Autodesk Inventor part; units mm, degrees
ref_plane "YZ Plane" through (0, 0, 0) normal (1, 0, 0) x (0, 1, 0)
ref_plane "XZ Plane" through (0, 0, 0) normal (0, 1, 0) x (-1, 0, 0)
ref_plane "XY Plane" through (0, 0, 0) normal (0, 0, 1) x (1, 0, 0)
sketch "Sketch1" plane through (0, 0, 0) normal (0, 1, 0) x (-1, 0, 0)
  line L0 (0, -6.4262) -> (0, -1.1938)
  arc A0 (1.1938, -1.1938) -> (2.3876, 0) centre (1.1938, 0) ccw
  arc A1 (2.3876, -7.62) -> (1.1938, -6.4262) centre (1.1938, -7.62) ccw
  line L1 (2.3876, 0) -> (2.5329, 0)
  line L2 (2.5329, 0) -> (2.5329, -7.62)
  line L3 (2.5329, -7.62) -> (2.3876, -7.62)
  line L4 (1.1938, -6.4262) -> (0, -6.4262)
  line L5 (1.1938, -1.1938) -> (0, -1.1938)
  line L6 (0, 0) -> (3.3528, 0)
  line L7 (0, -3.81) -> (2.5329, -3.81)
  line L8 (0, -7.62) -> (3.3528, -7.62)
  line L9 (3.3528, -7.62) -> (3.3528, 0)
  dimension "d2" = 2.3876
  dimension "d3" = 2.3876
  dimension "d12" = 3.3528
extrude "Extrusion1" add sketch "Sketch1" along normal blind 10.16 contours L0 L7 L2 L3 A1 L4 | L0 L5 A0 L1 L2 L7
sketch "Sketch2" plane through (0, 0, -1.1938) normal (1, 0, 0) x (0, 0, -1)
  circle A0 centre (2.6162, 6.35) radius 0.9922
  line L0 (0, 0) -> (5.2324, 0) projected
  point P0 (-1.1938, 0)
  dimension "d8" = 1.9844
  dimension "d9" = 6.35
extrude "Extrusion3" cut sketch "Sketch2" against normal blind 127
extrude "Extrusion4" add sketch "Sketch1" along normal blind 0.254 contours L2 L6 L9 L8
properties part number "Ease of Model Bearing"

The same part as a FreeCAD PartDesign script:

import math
import FreeCAD as App
import Part
import Sketcher
from FreeCAD import Vector
Q = App.Units.Quantity

doc = App.newDocument("Part")
body = doc.addObject("PartDesign::Body", "Body")

sketch1 = body.newObject("Sketcher::SketchObject", "Sketch")
sketch1.AttachmentSupport = (doc.getObject("XZ_Plane"), [""])
sketch1.MapMode = "FlatFace"
sketch1.addGeometry([
    Part.LineSegment(Vector(0, -6.4262, 0), Vector(-1.1938, -6.4262, 0)),
    Part.ArcOfCircle(Part.Circle(Vector(-1.1938, -7.62, 0), Vector(0, 0, 1), 1.1938), math.radians(90), math.radians(180)),
    Part.LineSegment(Vector(-2.3876, -7.62, 0), Vector(-2.5329, -7.62, 0)),
    Part.LineSegment(Vector(-2.5329, -7.62, 0), Vector(-2.5329, 0, 0)),
    Part.LineSegment(Vector(-2.5329, 0, 0), Vector(-2.3876, 0, 0)),
    Part.ArcOfCircle(Part.Circle(Vector(-1.1938, 0, 0), Vector(0, 0, 1), 1.1938), math.radians(180), math.radians(270)),
    Part.LineSegment(Vector(-1.1938, -1.1938, 0), Vector(0, -1.1938, 0)),
    Part.LineSegment(Vector(0, -1.1938, 0), Vector(0, -6.4262, 0)),
], False)
sketch1.addConstraint([
    Sketcher.Constraint("Tangent", 0, 2, 1, 1),
    Sketcher.Constraint("Coincident", 1, 2, 2, 1),
    Sketcher.Constraint("Coincident", 2, 2, 3, 1),
    Sketcher.Constraint("Coincident", 3, 2, 4, 1),
    Sketcher.Constraint("Coincident", 4, 2, 5, 1),
    Sketcher.Constraint("Tangent", 5, 2, 6, 1),
    Sketcher.Constraint("Coincident", 6, 2, 7, 1),
    Sketcher.Constraint("Coincident", 7, 2, 0, 1),
    Sketcher.Constraint("Horizontal", 0),
    Sketcher.Constraint("Horizontal", 2),
    Sketcher.Constraint("Vertical", 3),
    Sketcher.Constraint("Horizontal", 4),
    Sketcher.Constraint("Horizontal", 6),
    Sketcher.Constraint("Vertical", 7),
    Sketcher.Constraint("Equal", 1, 5),
    Sketcher.Constraint("PointOnObject", 5, 3, -1),
    Sketcher.Constraint("PointOnObject", 3, 2, -1),
    Sketcher.Constraint("PointOnObject", 6, 2, -2),
    Sketcher.Constraint("Vertical", 1, 3, 5, 3),
    Sketcher.Constraint("Radius", 1, Q("0.047 in")),
    Sketcher.Constraint("DistanceY", 3, 1, 3, 2, Q("0.3 in")),
    Sketcher.Constraint("DistanceX", 1, 2, -1, 1, Q("0.094 in")),
    Sketcher.Constraint("DistanceY", 1, 3, -1, 1, Q("0.3 in")),
    Sketcher.Constraint("DistanceX", 2, 2, 2, 1, 0.1453),
])
pad1 = body.newObject("PartDesign::Pad", "Pad")
pad1.Profile = sketch1
pad1.Length = Q("0.4 in")
pad1.Reversed = True

sketch2 = body.newObject("Sketcher::SketchObject", "Sketch001")
sketch2.AttachmentSupport = (doc.getObject("YZ_Plane"), [""])
sketch2.MapMode = "FlatFace"
sketch2.addGeometry(Part.Circle(Vector(6.35, -3.81, 0), Vector(0, 0, 1), 0.9922), False)
sketch2.addConstraint([
    Sketcher.Constraint("Diameter", 0, Q("0.078126 in")),
    Sketcher.Constraint("DistanceX", -1, 1, 0, 3, Q("0.25 in")),
    Sketcher.Constraint("DistanceY", 0, 3, -1, 1, Q("0.15 in")),
])
pocket1 = body.newObject("PartDesign::Pocket", "Pocket")
pocket1.Profile = sketch2
pocket1.Length = Q("5 in")

sketch3 = body.newObject("Sketcher::SketchObject", "Sketch002")
sketch3.AttachmentSupport = (doc.getObject("XZ_Plane"), [""])
sketch3.MapMode = "FlatFace"
sketch3.addGeometry([
    Part.LineSegment(Vector(-2.5329, 0, 0), Vector(-2.5329, -7.62, 0)),
    Part.LineSegment(Vector(-2.5329, -7.62, 0), Vector(-3.3528, -7.62, 0)),
    Part.LineSegment(Vector(-3.3528, -7.62, 0), Vector(-3.3528, 0, 0)),
    Part.LineSegment(Vector(-3.3528, 0, 0), Vector(-2.5329, 0, 0)),
], False)
sketch3.addConstraint([
    Sketcher.Constraint("Coincident", 0, 2, 1, 1),
    Sketcher.Constraint("Coincident", 1, 2, 2, 1),
    Sketcher.Constraint("Coincident", 2, 2, 3, 1),
    Sketcher.Constraint("Coincident", 3, 2, 0, 1),
    Sketcher.Constraint("Vertical", 0),
    Sketcher.Constraint("Horizontal", 1),
    Sketcher.Constraint("Vertical", 2),
    Sketcher.Constraint("Horizontal", 3),
    Sketcher.Constraint("PointOnObject", 2, 2, -1),
    Sketcher.Constraint("DistanceY", 0, 2, 0, 1, Q("0.3 in")),
    Sketcher.Constraint("DistanceX", 1, 2, -1, 1, Q("0.132 in")),
    Sketcher.Constraint("DistanceX", 1, 2, 1, 1, 0.82),
])
pad2 = body.newObject("PartDesign::Pad", "Pad001")
pad2.Profile = sketch3
pad2.Length = Q("0.01 in")
pad2.Reversed = True

doc.recompute()
